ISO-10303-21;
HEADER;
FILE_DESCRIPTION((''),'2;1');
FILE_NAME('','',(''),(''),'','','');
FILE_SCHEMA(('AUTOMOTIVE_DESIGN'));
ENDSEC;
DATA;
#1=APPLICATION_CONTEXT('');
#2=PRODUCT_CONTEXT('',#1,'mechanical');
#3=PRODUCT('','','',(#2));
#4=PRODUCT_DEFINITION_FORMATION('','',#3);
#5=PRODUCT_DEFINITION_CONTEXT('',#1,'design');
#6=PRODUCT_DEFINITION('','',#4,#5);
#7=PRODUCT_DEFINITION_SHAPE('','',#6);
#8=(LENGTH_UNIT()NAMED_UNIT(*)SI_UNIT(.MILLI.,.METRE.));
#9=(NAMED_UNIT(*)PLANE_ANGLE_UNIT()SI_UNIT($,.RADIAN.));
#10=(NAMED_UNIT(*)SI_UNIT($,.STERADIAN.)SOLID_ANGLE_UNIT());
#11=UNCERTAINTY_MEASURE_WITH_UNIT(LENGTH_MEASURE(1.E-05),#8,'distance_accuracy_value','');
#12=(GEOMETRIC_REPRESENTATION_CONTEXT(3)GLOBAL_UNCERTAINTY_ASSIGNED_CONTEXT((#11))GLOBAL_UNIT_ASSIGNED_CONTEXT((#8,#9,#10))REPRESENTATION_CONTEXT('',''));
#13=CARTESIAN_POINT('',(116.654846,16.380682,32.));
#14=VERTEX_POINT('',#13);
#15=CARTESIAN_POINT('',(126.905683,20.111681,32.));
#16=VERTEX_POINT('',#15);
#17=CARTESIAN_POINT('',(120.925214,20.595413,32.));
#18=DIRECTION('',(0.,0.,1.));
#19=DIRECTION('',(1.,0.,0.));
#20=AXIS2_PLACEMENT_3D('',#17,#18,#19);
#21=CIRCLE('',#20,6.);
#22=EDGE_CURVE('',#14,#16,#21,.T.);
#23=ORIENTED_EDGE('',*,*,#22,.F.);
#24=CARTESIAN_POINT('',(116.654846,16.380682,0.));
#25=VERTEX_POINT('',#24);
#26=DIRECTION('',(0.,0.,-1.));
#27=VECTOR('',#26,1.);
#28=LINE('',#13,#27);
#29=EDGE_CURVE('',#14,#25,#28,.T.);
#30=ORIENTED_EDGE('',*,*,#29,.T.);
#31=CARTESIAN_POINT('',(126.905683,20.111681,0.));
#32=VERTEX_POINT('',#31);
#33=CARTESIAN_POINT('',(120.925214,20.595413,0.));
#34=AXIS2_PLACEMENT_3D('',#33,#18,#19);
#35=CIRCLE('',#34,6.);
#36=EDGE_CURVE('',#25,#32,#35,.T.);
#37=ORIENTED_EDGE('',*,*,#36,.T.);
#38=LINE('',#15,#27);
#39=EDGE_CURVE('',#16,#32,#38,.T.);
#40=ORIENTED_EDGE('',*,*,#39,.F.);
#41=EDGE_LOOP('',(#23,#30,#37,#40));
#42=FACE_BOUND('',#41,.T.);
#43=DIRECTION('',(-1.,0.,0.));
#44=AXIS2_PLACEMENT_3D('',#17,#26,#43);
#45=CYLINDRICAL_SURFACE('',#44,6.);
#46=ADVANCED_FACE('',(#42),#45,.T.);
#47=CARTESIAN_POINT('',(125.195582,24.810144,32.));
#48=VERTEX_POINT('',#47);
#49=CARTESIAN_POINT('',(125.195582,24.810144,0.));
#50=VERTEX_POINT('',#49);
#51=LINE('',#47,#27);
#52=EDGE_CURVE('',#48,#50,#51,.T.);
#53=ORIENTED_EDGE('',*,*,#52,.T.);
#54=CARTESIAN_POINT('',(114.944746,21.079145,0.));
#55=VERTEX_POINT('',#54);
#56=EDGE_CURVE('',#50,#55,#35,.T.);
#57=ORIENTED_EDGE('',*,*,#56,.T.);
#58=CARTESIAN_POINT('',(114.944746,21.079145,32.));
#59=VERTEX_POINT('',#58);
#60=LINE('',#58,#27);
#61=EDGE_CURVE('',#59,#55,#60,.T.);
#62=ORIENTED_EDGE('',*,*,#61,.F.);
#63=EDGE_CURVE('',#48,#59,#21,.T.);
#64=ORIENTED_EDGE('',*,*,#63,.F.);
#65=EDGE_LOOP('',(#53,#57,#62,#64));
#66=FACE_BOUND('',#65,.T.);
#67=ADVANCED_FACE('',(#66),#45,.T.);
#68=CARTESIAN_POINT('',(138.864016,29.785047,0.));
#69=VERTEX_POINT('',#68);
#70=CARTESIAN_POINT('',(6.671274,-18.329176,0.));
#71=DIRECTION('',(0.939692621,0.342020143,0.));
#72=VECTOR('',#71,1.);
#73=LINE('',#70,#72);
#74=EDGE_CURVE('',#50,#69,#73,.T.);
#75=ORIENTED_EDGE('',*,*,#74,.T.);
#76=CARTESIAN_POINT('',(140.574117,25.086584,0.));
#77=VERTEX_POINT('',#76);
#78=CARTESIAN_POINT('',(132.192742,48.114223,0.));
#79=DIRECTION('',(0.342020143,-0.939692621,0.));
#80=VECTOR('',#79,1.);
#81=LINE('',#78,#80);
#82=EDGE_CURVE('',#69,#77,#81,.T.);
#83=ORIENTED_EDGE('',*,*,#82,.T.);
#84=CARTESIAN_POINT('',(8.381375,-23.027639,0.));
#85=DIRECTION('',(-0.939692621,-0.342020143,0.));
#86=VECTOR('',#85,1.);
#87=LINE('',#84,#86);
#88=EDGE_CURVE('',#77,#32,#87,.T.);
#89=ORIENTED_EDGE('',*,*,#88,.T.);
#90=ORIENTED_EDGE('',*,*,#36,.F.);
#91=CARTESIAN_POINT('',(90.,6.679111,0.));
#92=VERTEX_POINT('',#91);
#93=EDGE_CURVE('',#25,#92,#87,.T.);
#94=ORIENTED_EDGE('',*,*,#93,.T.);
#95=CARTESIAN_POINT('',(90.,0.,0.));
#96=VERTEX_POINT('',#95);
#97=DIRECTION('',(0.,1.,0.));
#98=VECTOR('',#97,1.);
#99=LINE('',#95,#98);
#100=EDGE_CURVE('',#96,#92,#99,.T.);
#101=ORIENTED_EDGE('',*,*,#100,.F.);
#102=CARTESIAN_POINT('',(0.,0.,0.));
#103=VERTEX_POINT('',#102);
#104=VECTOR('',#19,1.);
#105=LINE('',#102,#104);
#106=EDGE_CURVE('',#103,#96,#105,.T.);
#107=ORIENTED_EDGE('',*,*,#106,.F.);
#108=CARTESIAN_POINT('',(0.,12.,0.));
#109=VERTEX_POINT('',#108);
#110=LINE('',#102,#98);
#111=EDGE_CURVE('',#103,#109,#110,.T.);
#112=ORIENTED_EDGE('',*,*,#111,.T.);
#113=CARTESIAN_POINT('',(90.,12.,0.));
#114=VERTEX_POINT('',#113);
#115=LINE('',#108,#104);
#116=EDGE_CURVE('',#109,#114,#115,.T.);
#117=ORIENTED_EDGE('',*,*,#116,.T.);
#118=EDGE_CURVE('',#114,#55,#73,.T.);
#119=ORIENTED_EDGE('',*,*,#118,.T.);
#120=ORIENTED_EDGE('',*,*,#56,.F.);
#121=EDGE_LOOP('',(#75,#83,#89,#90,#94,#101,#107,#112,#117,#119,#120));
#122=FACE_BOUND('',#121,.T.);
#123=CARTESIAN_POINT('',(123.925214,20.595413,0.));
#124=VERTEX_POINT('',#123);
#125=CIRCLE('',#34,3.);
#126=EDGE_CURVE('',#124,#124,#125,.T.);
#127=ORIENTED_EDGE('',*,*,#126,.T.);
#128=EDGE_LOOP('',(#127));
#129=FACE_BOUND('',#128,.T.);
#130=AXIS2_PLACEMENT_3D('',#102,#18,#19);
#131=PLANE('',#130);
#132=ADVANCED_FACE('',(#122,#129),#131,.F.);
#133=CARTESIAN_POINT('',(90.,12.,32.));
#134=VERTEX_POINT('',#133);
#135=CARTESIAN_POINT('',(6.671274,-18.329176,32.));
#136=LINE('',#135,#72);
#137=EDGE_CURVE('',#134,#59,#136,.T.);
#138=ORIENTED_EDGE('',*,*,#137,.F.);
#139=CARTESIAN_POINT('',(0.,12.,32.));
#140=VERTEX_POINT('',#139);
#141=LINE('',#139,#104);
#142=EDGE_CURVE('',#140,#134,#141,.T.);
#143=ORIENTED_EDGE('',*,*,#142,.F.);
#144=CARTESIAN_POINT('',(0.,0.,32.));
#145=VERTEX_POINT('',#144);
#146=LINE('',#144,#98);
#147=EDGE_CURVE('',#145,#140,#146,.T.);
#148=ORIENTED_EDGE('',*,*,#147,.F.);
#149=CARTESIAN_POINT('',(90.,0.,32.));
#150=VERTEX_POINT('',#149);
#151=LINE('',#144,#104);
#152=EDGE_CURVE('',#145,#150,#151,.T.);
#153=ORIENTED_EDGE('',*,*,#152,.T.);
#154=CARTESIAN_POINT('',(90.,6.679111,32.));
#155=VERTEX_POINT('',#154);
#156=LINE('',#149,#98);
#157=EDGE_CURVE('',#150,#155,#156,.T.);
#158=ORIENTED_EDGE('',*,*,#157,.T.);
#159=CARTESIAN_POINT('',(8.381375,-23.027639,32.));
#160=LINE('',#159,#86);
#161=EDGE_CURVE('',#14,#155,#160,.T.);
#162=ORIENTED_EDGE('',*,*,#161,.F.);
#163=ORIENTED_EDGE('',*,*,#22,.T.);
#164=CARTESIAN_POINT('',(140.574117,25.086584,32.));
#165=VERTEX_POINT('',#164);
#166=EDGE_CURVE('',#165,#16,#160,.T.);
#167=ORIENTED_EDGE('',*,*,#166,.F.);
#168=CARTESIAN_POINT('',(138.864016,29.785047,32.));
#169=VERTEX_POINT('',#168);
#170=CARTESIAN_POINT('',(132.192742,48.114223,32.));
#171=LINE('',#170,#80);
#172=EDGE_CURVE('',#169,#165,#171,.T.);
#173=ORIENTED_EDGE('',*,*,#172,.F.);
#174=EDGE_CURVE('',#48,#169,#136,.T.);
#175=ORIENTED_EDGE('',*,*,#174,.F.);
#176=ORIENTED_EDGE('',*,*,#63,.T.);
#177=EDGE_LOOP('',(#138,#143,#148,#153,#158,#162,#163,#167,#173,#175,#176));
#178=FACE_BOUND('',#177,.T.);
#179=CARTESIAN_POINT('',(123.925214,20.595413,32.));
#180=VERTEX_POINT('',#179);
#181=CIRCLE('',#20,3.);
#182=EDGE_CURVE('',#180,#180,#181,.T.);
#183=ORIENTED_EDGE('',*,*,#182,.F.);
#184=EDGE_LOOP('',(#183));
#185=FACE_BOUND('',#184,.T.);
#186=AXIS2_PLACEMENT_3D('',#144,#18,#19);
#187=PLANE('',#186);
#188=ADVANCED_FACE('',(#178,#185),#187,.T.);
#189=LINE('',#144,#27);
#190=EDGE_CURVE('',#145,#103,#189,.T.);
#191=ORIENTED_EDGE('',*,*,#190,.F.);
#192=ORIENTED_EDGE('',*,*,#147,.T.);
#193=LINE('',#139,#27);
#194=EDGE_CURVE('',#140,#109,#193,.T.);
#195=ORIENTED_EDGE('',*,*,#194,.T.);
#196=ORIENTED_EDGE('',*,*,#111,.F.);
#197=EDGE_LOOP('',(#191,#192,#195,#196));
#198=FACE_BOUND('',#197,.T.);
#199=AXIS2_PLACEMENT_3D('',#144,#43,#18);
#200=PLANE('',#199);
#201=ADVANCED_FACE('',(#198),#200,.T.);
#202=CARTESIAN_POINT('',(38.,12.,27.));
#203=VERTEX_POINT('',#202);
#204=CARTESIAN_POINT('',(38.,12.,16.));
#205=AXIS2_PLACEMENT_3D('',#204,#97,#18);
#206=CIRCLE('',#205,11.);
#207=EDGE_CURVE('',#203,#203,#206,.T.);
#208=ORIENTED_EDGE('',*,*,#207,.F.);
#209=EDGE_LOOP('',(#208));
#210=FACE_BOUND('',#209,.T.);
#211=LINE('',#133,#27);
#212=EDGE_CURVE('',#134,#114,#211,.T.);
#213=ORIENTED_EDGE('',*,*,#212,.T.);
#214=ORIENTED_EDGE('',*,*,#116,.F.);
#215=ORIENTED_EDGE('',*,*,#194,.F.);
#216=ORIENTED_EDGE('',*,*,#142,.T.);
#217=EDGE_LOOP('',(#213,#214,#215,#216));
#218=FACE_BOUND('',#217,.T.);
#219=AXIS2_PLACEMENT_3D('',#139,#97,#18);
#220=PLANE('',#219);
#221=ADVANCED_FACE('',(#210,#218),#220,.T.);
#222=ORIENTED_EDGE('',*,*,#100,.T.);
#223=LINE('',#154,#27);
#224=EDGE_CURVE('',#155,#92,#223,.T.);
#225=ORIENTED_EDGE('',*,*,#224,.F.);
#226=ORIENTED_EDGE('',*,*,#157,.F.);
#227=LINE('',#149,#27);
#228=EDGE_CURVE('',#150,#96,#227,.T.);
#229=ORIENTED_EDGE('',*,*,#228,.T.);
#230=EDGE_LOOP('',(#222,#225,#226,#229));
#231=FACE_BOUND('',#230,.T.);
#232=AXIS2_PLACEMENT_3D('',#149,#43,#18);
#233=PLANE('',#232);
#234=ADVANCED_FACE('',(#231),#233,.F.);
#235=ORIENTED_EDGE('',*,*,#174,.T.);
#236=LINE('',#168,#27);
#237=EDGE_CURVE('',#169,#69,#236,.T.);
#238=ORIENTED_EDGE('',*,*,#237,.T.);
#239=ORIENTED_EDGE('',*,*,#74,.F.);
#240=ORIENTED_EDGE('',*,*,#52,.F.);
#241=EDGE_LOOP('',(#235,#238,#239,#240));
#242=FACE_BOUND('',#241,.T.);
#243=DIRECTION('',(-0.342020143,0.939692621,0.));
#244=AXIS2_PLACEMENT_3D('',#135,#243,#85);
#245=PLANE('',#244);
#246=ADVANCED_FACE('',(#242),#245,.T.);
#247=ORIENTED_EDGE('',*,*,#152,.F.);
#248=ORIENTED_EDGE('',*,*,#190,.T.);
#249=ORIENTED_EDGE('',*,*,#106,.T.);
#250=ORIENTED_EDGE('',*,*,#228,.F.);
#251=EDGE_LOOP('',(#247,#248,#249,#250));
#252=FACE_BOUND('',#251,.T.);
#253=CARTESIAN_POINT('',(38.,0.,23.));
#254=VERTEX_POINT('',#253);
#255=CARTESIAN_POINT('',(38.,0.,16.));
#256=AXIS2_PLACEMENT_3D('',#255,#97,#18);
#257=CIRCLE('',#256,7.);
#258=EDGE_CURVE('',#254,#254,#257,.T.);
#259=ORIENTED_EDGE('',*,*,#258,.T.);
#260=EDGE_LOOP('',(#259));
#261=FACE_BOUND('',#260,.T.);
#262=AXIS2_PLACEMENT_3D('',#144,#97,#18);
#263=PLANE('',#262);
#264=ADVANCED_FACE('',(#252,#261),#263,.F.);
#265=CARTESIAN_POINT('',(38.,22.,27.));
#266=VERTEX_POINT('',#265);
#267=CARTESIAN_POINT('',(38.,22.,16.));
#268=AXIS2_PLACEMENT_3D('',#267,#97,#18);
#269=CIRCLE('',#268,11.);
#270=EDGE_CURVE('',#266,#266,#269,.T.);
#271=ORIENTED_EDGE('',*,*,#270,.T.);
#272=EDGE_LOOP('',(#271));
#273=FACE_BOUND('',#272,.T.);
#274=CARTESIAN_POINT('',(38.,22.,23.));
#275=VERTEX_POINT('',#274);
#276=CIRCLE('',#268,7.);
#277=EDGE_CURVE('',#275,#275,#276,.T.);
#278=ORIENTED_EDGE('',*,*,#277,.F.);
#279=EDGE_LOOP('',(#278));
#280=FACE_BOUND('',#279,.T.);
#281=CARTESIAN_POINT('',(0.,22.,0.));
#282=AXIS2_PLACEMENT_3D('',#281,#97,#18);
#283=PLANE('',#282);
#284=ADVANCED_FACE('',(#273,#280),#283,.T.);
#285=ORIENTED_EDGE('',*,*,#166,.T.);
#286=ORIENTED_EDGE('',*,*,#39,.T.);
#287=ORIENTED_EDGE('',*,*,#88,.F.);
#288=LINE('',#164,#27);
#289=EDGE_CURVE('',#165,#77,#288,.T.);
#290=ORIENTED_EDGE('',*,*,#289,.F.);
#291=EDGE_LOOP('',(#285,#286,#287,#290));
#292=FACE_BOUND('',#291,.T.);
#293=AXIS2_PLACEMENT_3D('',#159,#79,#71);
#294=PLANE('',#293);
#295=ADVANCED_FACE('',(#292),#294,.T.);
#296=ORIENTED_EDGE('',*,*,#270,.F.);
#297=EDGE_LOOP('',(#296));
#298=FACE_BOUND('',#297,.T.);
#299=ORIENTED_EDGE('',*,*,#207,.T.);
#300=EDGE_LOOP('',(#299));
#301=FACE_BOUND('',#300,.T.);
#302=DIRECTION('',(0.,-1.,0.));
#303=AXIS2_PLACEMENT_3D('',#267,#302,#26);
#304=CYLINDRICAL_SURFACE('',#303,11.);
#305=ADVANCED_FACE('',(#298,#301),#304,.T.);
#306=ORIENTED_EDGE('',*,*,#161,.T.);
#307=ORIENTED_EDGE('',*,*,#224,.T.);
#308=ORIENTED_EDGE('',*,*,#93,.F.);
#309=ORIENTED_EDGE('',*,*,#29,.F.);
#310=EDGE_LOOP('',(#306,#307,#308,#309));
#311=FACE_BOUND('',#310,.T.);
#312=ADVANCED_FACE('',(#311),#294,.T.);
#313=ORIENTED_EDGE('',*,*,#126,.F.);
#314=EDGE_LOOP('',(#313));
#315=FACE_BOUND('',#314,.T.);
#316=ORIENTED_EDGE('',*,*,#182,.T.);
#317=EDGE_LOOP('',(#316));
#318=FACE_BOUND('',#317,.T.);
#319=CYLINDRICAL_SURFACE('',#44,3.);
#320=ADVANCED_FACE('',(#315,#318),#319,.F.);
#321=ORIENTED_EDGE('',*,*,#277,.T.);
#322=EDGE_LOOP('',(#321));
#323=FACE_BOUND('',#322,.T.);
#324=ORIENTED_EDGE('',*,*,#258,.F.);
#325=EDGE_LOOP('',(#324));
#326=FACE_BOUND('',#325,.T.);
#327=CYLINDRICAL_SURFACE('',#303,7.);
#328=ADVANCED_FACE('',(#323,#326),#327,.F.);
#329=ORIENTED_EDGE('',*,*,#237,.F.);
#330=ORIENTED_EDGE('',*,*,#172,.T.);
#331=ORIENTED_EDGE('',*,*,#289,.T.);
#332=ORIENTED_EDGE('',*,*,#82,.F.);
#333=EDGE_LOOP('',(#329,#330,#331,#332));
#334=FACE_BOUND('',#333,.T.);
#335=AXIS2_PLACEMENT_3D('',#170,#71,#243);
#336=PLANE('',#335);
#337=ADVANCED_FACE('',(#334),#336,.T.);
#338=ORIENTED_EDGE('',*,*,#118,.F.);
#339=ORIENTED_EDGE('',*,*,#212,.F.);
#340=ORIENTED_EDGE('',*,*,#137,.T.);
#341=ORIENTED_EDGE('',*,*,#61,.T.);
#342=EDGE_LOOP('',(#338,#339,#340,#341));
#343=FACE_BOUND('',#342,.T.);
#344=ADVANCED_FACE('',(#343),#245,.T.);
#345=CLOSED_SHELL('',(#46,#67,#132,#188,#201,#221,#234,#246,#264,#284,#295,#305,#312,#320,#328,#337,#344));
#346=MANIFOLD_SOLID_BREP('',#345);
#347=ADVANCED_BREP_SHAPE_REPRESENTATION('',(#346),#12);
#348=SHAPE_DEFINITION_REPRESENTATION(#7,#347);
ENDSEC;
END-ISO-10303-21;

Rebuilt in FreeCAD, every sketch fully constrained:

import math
import FreeCAD as App
import Part
import Sketcher
from FreeCAD import Vector
Q = App.Units.Quantity

doc = App.newDocument("Part")
body = doc.addObject("PartDesign::Body", "Body")

# Sketch on XY plane
sketch1 = doc.addObject("Sketcher::SketchObject", "Sketch")
body.addObject(sketch1)
sketch1.AttachmentSupport = (doc.XY_Plane, [""])
sketch1.MapMode = "FlatFace"
sketch1.addGeometry([
    Part.ArcOfCircle(Part.Circle(Vector(120.925214, 20.595413, 0), Vector(0, 0, 1), 6), math.radians(-135.375682), math.radians(-4.624318)),  # 0
    Part.LineSegment(Vector(126.905683, 20.111681, 0), Vector(140.574117, 25.086584, 0)),  # 1
    Part.LineSegment(Vector(140.574117, 25.086584, 0), Vector(138.864016, 29.785047, 0)),  # 2
    Part.LineSegment(Vector(138.864016, 29.785047, 0), Vector(125.195582, 24.810144, 0)),  # 3
    Part.ArcOfCircle(Part.Circle(Vector(120.925214, 20.595413, 0), Vector(0, 0, 1), 6), math.radians(44.624318), math.radians(175.375682)),  # 4
    Part.LineSegment(Vector(114.944746, 21.079145, 0), Vector(90, 12, 0)),  # 5
    Part.LineSegment(Vector(90, 12, 0), Vector(0, 12, 0)),  # 6
    Part.LineSegment(Vector(0, 12, 0), Vector(0, 0, 0)),  # 7
    Part.LineSegment(Vector(0, 0, 0), Vector(90, 0, 0)),  # 8
    Part.LineSegment(Vector(90, 0, 0), Vector(90, 6.679111, 0)),  # 9
    Part.LineSegment(Vector(90, 6.679111, 0), Vector(116.654846, 16.380682, 0)),  # 10
    Part.Circle(Vector(120.925214, 20.595413, 0), Vector(0, 0, 1), 3),  # 11
], False)
sketch1.addConstraint([
    Sketcher.Constraint("Coincident", 0, 2, 1, 1),
    Sketcher.Constraint("Coincident", 1, 2, 2, 1),
    Sketcher.Constraint("Coincident", 2, 2, 3, 1),
    Sketcher.Constraint("Coincident", 3, 2, 4, 1),
    Sketcher.Constraint("Coincident", 4, 2, 5, 1),
    Sketcher.Constraint("Coincident", 5, 2, 6, 1),
    Sketcher.Constraint("Coincident", 6, 2, 7, 1),
    Sketcher.Constraint("Coincident", 7, 2, 8, 1),
    Sketcher.Constraint("Coincident", 8, 2, 9, 1),
    Sketcher.Constraint("Coincident", 9, 2, 10, 1),
    Sketcher.Constraint("Coincident", 10, 2, 0, 1),
    Sketcher.Constraint("Horizontal", 6),
    Sketcher.Constraint("Vertical", 7),
    Sketcher.Constraint("Horizontal", 8),
    Sketcher.Constraint("Vertical", 9),
    Sketcher.Constraint("Coincident", 7, 2, -1, 1),
    Sketcher.Constraint("Coincident", 4, 3, 0, 3),
    Sketcher.Constraint("Coincident", 11, 3, 0, 3),
    Sketcher.Constraint("Equal", 0, 4),
    Sketcher.Constraint("Perpendicular", 1, 2),
    Sketcher.Constraint("Perpendicular", 2, 3),
    Sketcher.Constraint("Parallel", 3, 5),
    Sketcher.Constraint("Parallel", 5, 10),
    Sketcher.Constraint("Vertical", 5, 2, 8, 2),
    Sketcher.Constraint("Equal", 1, 3),
    Sketcher.Constraint("Diameter", 11, 6.0),
    Sketcher.Constraint("Radius", 0, 6.0),
    Sketcher.Constraint("DistanceX", 6, 2, 6, 1, 90.0),
    Sketcher.Constraint("DistanceY", 7, 2, 7, 1, 12.0),
    Sketcher.Constraint("Angle", 1, Q("20 deg")),
    Sketcher.Constraint("Distance", 2, 5.0),
    Sketcher.Constraint("DistanceY", 4, 2, 3, 2, 3.730999),
    Sketcher.Constraint("DistanceY", 10, 2, 0, 2, 3.730999),
    Sketcher.Constraint("DistanceY", 9, 2, 11, 3, 13.916302),
    Sketcher.Constraint("DistanceY", 0, 3, 1, 2, 4.491171),
])
pad1 = doc.addObject("PartDesign::Pad", "Pad")
body.addObject(pad1)
pad1.Profile = sketch1
pad1.Length = 32

# Sketch on XZ plane
sketch2 = doc.addObject("Sketcher::SketchObject", "Sketch001")
body.addObject(sketch2)
sketch2.AttachmentSupport = (doc.XZ_Plane, [""])
sketch2.MapMode = "FlatFace"
sketch2.AttachmentOffset = App.Placement(Vector(0, 0, -12), App.Rotation())
sketch2.addGeometry([
    Part.Circle(Vector(38, 16, 0), Vector(0, 0, 1), 11),
    Part.Circle(Vector(38, 16, 0), Vector(0, 0, 1), 7),
], False)
sketch2.addConstraint([
    Sketcher.Constraint("Coincident", 1, 3, 0, 3),
    Sketcher.Constraint("Diameter", 0, 22.0),
    Sketcher.Constraint("Diameter", 1, 14.0),
    Sketcher.Constraint("DistanceX", -1, 1, 0, 3, 38.0),
    Sketcher.Constraint("DistanceY", -1, 1, 0, 3, 16.0),
])
pad2 = doc.addObject("PartDesign::Pad", "Pad001")
body.addObject(pad2)
pad2.Profile = sketch2
pad2.Length = 10
pad2.Reversed = True

# Sketch on XZ plane
sketch3 = doc.addObject("Sketcher::SketchObject", "Sketch002")
body.addObject(sketch3)
sketch3.AttachmentSupport = (doc.XZ_Plane, [""])
sketch3.MapMode = "FlatFace"
sketch3.AttachmentOffset = App.Placement(Vector(0, 0, -12), App.Rotation())
sketch3.addGeometry(Part.Circle(Vector(38, 16, 0), Vector(0, 0, 1), 7), False)
sketch3.addConstraint([
    Sketcher.Constraint("Diameter", 0, 14.0),
    Sketcher.Constraint("DistanceX", -1, 1, 0, 3, 38.0),
    Sketcher.Constraint("DistanceY", -1, 1, 0, 3, 16.0),
])
pocket1 = doc.addObject("PartDesign::Pocket", "Pocket")
body.addObject(pocket1)
pocket1.Profile = sketch3
pocket1.Type = "ThroughAll"
pocket1.Reversed = True

doc.recompute()
